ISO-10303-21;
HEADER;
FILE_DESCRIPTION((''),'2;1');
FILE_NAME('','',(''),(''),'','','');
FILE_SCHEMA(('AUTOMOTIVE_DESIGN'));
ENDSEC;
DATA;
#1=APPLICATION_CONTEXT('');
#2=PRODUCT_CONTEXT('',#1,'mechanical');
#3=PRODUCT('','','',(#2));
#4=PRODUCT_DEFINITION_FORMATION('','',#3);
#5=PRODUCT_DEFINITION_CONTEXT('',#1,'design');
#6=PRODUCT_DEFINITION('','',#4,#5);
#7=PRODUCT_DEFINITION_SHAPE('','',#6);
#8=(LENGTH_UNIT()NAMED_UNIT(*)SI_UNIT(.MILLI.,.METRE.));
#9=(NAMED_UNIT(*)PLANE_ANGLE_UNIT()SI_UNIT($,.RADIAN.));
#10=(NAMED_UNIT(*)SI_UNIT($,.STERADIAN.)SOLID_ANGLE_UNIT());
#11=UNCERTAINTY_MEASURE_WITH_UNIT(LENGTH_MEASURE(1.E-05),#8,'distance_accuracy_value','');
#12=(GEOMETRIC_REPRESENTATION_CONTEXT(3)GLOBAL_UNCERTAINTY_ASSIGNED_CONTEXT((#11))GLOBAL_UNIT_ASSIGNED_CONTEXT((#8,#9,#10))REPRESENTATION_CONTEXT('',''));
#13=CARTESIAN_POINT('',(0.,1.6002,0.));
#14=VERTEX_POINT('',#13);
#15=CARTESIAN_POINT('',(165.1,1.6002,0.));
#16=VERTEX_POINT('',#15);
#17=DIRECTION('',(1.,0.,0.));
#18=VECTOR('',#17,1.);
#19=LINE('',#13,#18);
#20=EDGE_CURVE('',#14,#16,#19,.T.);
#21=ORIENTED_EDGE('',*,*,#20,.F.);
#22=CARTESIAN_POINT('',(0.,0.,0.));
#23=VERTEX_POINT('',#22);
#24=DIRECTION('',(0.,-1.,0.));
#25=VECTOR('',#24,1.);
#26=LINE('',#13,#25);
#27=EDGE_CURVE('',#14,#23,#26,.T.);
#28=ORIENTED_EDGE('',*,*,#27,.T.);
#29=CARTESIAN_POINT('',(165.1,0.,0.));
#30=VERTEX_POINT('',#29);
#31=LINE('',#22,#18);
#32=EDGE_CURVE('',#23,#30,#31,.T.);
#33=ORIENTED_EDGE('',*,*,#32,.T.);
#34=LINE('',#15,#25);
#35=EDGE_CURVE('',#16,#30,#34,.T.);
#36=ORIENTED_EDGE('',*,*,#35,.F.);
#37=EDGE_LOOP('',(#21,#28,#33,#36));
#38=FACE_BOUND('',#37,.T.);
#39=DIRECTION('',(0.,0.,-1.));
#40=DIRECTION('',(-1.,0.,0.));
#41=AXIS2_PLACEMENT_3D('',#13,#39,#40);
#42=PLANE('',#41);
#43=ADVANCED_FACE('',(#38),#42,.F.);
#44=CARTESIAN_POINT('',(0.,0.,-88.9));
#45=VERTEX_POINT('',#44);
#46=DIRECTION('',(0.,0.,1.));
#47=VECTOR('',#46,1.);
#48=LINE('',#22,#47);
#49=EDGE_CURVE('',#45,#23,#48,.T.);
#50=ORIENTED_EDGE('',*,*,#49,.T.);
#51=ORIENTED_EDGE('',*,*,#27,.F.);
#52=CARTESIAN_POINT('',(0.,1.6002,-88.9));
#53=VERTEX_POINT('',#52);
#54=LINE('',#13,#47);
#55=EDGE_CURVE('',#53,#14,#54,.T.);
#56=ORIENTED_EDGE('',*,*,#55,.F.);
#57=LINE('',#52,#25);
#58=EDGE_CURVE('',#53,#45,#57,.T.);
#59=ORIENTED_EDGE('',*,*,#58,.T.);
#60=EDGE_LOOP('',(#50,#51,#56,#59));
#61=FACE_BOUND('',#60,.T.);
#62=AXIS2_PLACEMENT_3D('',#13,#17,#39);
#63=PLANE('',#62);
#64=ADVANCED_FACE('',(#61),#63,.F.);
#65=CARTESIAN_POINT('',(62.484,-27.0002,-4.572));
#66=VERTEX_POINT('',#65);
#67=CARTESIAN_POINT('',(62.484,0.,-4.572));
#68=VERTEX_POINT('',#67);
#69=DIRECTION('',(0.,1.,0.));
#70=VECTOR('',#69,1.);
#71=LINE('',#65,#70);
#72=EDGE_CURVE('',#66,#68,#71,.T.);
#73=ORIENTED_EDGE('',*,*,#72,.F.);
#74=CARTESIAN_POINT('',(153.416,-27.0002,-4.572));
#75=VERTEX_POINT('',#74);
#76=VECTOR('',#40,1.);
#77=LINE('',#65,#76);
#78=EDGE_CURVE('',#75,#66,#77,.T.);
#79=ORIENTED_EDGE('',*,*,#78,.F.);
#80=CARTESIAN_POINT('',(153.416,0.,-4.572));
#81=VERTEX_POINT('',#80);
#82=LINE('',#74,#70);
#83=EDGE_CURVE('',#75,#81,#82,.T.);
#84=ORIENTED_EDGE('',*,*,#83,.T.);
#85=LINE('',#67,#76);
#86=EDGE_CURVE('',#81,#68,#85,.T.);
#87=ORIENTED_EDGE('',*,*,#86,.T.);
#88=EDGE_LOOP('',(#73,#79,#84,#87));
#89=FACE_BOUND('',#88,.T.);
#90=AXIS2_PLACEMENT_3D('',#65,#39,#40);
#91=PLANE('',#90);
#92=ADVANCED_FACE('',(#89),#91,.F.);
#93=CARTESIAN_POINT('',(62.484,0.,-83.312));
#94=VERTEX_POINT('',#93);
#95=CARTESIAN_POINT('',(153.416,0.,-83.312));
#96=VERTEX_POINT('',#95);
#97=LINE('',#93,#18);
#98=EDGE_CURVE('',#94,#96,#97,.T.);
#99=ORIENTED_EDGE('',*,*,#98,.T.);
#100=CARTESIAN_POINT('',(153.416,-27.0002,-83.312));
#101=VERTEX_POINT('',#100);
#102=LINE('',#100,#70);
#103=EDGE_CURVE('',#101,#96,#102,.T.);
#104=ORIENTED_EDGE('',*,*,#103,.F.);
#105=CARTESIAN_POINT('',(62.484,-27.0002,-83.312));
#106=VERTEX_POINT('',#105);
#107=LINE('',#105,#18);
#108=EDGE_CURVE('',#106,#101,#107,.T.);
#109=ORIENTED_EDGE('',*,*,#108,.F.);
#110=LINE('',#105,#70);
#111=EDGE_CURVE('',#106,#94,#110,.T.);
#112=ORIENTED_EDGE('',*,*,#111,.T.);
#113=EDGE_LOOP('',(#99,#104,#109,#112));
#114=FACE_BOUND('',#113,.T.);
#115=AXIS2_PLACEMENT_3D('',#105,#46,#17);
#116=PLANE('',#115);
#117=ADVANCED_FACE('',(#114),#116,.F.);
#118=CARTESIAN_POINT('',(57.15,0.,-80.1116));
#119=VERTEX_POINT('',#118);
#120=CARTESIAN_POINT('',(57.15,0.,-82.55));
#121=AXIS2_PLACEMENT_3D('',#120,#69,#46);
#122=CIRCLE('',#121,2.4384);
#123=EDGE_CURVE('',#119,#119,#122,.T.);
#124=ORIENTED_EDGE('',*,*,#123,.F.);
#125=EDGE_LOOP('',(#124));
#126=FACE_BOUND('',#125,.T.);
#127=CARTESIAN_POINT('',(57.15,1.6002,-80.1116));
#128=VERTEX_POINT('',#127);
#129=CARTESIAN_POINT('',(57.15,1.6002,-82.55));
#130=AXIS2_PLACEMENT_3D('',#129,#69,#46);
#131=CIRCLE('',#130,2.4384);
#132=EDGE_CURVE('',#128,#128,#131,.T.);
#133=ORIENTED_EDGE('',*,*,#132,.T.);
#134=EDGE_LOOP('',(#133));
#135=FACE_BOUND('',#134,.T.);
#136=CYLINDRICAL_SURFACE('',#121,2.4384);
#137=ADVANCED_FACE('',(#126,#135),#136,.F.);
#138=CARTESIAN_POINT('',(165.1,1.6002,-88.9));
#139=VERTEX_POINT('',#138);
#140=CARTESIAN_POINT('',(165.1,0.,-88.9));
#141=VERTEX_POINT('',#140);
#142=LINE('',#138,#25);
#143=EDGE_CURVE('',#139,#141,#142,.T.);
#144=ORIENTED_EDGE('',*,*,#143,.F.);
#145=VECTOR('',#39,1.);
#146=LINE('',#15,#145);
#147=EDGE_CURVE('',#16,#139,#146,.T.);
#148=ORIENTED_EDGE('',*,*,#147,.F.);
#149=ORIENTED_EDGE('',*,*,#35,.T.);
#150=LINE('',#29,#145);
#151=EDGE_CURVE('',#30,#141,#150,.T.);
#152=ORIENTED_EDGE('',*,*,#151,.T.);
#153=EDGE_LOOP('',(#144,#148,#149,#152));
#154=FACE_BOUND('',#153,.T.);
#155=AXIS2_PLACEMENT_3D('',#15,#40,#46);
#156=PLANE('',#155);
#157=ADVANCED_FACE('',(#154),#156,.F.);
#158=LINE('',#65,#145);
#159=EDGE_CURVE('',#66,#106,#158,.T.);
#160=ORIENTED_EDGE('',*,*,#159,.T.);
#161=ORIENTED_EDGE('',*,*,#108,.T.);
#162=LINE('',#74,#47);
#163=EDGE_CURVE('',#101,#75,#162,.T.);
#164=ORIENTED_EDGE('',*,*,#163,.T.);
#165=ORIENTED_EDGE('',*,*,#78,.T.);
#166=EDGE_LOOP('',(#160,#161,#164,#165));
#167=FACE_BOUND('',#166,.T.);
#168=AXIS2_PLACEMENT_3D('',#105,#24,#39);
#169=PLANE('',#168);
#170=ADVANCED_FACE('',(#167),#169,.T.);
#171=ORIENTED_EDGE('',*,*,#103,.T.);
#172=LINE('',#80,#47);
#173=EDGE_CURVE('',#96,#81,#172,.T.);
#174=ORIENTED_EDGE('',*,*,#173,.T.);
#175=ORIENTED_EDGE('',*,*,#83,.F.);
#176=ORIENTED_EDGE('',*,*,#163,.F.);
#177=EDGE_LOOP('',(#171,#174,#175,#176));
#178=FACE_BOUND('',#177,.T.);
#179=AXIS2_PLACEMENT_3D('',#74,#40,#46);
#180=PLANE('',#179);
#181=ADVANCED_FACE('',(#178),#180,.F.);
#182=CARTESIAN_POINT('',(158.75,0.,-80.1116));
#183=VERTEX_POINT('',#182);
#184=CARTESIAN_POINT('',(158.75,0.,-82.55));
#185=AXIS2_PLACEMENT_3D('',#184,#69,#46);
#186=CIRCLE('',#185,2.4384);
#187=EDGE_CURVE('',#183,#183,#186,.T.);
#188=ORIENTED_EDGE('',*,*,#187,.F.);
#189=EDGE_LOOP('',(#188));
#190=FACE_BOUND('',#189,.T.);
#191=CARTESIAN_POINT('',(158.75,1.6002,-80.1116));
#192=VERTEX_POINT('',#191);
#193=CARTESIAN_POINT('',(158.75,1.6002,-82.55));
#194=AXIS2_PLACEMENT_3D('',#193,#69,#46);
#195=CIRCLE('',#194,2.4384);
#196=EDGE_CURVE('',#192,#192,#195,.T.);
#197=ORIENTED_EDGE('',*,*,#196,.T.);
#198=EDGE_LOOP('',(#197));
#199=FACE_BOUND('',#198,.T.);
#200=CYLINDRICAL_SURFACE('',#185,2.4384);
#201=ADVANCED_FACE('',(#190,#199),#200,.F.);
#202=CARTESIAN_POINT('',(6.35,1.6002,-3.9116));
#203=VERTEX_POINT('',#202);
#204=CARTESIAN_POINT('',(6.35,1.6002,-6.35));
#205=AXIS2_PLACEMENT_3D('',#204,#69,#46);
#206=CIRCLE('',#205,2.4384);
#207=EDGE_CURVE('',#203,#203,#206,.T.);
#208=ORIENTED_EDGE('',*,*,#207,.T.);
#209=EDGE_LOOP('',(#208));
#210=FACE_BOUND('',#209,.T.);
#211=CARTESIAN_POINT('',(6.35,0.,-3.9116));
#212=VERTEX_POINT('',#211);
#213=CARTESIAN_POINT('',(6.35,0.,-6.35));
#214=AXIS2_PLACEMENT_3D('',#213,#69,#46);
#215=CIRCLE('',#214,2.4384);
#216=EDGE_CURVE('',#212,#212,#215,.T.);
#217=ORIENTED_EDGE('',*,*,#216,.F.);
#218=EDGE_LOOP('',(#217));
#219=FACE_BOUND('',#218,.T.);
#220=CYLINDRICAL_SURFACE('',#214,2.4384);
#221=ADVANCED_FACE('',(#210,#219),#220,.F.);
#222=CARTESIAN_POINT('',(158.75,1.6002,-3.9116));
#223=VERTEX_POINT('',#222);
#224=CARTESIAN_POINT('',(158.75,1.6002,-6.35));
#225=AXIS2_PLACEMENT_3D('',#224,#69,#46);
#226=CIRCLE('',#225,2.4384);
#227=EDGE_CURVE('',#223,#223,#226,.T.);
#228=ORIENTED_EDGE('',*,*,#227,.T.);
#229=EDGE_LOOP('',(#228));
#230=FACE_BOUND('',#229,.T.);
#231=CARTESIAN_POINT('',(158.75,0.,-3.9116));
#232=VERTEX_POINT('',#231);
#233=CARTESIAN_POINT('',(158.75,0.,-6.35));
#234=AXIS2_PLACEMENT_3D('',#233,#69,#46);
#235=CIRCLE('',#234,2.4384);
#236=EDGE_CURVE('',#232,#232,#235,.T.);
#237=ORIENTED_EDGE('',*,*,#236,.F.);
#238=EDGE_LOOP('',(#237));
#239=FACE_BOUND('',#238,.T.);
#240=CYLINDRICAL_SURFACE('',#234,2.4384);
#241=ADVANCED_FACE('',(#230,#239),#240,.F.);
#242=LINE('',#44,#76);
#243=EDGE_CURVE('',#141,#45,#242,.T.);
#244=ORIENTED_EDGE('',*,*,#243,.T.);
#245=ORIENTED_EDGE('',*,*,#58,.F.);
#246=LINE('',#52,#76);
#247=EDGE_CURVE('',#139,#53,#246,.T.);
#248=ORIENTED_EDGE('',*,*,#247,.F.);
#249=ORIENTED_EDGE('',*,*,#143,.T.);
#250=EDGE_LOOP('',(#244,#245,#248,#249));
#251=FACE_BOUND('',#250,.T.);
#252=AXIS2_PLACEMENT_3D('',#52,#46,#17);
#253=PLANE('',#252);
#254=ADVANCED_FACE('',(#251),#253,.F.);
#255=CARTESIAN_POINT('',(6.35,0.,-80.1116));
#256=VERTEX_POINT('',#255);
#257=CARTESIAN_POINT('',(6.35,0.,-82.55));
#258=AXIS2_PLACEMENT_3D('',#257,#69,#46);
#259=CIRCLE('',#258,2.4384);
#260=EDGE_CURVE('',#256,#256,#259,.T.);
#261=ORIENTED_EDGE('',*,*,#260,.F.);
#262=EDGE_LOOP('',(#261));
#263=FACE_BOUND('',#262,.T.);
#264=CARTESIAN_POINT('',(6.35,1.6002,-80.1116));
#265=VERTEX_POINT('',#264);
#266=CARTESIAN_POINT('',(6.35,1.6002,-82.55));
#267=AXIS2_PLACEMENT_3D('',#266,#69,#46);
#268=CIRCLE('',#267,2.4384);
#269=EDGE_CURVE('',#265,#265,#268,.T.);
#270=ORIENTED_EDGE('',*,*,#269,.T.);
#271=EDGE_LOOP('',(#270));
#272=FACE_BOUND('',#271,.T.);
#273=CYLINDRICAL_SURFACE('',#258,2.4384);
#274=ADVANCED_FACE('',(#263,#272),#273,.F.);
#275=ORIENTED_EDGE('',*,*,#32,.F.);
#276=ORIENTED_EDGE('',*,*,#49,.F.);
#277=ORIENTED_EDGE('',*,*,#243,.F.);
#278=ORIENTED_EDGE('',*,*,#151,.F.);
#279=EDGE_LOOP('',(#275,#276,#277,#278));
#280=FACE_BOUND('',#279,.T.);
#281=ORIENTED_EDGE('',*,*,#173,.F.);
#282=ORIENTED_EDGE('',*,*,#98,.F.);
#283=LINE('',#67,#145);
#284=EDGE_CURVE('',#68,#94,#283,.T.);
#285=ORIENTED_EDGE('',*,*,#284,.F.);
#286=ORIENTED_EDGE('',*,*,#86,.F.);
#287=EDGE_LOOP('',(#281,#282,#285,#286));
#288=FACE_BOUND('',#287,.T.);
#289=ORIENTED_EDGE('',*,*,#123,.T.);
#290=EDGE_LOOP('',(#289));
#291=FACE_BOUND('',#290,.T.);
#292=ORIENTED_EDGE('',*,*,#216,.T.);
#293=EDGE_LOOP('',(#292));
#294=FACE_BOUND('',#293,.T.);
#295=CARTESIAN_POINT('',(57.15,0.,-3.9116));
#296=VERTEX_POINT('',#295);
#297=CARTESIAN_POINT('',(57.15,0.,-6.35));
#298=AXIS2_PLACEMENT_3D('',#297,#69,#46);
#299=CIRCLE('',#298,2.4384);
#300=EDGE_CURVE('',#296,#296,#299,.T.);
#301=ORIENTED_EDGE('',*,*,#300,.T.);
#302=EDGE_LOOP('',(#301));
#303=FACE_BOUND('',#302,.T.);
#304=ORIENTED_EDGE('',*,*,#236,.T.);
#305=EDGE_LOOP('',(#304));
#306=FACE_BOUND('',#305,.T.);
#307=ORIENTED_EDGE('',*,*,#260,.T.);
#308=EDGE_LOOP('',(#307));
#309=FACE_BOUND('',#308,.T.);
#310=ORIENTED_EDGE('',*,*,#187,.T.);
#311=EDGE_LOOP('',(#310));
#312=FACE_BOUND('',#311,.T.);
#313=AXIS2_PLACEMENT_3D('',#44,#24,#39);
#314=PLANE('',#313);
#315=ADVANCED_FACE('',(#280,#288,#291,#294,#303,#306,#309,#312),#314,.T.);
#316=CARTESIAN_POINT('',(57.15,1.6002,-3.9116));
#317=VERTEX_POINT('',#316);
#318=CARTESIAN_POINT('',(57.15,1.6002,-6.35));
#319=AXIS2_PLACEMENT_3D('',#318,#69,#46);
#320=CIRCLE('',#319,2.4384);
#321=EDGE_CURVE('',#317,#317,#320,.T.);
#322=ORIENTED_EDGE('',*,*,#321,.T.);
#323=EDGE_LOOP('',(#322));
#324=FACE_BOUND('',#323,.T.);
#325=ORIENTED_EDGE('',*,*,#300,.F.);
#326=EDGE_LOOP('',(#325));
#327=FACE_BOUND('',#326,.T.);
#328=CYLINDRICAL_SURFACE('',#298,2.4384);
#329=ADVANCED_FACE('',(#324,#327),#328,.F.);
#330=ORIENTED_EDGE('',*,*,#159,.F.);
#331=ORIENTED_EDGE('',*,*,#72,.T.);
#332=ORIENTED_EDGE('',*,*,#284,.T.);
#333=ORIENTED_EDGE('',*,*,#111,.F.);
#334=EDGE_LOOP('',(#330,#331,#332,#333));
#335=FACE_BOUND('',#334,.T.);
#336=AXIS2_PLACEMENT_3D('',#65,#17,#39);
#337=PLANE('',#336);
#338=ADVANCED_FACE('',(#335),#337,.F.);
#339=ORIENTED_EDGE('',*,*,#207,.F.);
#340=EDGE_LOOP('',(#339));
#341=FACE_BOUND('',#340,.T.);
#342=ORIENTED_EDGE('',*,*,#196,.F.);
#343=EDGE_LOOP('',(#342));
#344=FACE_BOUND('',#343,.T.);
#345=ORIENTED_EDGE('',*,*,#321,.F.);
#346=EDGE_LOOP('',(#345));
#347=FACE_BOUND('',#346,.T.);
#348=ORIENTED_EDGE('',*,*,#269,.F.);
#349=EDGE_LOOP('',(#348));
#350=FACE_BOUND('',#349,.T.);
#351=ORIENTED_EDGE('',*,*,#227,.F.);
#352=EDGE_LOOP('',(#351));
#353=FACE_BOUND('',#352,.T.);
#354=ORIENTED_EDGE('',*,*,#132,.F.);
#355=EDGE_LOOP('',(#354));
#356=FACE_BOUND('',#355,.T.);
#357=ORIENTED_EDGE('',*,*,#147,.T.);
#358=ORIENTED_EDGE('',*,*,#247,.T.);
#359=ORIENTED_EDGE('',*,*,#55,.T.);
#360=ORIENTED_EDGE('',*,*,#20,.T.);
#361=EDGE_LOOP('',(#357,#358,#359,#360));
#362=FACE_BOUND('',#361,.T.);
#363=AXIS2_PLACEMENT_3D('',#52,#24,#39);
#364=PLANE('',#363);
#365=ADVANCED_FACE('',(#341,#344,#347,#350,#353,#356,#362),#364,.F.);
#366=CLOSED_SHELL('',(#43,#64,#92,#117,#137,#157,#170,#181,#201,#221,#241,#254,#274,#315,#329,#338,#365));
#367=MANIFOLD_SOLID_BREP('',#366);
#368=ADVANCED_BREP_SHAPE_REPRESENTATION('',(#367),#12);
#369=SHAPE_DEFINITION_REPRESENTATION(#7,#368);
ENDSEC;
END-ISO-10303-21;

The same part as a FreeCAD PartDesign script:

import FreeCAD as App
import Part
import Sketcher
Q = App.Units.Quantity

doc = App.newDocument("Part")
body = doc.addObject("PartDesign::Body", "Body")

sketch1 = body.newObject("Sketcher::SketchObject", "Sketch")
sketch1.AttachmentSupport = (doc.getObject("XZ_Plane"), [""])
sketch1.MapMode = "FlatFace"
sketch1.addGeometry(Part.LineSegment(App.Vector(0, -88.9, 0), App.Vector(0, 0, 0)), False)
sketch1.addGeometry(Part.LineSegment(App.Vector(0, 0, 0), App.Vector(165.1, 0, 0)), False)
sketch1.addGeometry(Part.LineSegment(App.Vector(165.1, 0, 0), App.Vector(165.1, -88.9, 0)), False)
sketch1.addGeometry(Part.LineSegment(App.Vector(165.1, -88.9, 0), App.Vector(0, -88.9, 0)), False)
sketch1.addConstraint(Sketcher.Constraint("Coincident", 0, 2, 1, 1))
sketch1.addConstraint(Sketcher.Constraint("Coincident", 1, 2, 2, 1))
sketch1.addConstraint(Sketcher.Constraint("Coincident", 2, 2, 3, 1))
sketch1.addConstraint(Sketcher.Constraint("Coincident", 3, 2, 0, 1))
sketch1.addConstraint(Sketcher.Constraint("Vertical", 0))
sketch1.addConstraint(Sketcher.Constraint("Horizontal", 1))
sketch1.addConstraint(Sketcher.Constraint("Vertical", 2))
sketch1.addConstraint(Sketcher.Constraint("Horizontal", 3))
sketch1.addConstraint(Sketcher.Constraint("Coincident", 0, 2, -1, 1))
sketch1.addConstraint(Sketcher.Constraint("DistanceX", 1, 1, 1, 2, Q("6.5 in")))
sketch1.addConstraint(Sketcher.Constraint("DistanceY", 0, 1, 0, 2, Q("3.5 in")))
pad1 = body.newObject("PartDesign::Pad", "Pad")
pad1.Profile = sketch1
pad1.Length = Q("0.063 in")
pad1.Reversed = True

sketch2 = body.newObject("Sketcher::SketchObject", "Sketch001")
sketch2.AttachmentSupport = (doc.getObject("XZ_Plane"), [""])
sketch2.MapMode = "FlatFace"
sketch2.AttachmentOffset = App.Placement(App.Vector(0, 0, -0.063 * 25.4), App.Rotation())
sketch2.addGeometry(Part.Circle(App.Vector(158.75, -6.35, 0), App.Vector(0, 0, 1), 2.4384), False)
sketch2.addGeometry(Part.Circle(App.Vector(57.15, -6.35, 0), App.Vector(0, 0, 1), 2.4384), False)
sketch2.addGeometry(Part.Circle(App.Vector(6.35, -6.35, 0), App.Vector(0, 0, 1), 2.4384), False)
sketch2.addGeometry(Part.Circle(App.Vector(158.75, -82.55, 0), App.Vector(0, 0, 1), 2.4384), False)
sketch2.addGeometry(Part.Circle(App.Vector(57.15, -82.55, 0), App.Vector(0, 0, 1), 2.4384), False)
sketch2.addGeometry(Part.Circle(App.Vector(6.35, -82.55, 0), App.Vector(0, 0, 1), 2.4384), False)
sketch2.addConstraint(Sketcher.Constraint("Equal", 0, 1))
sketch2.addConstraint(Sketcher.Constraint("Equal", 1, 2))
sketch2.addConstraint(Sketcher.Constraint("Equal", 2, 3))
sketch2.addConstraint(Sketcher.Constraint("Equal", 3, 4))
sketch2.addConstraint(Sketcher.Constraint("Equal", 4, 5))
sketch2.addConstraint(Sketcher.Constraint("Horizontal", 0, 3, 1, 3))
sketch2.addConstraint(Sketcher.Constraint("Horizontal", 1, 3, 2, 3))
sketch2.addConstraint(Sketcher.Constraint("Horizontal", 3, 3, 4, 3))
sketch2.addConstraint(Sketcher.Constraint("Horizontal", 4, 3, 5, 3))
sketch2.addConstraint(Sketcher.Constraint("Vertical", 0, 3, 3, 3))
sketch2.addConstraint(Sketcher.Constraint("Vertical", 1, 3, 4, 3))
sketch2.addConstraint(Sketcher.Constraint("Vertical", 2, 3, 5, 3))
sketch2.addConstraint(Sketcher.Constraint("Diameter", 0, Q("0.192 in")))
sketch2.addConstraint(Sketcher.Constraint("DistanceX", 1, 3, 0, 3, Q("4 in")))
sketch2.addConstraint(Sketcher.Constraint("DistanceX", 2, 3, 1, 3, Q("2 in")))
sketch2.addConstraint(Sketcher.Constraint("DistanceY", 3, 3, 0, 3, Q("3 in")))
sketch2.addConstraint(Sketcher.Constraint("DistanceX", -1, 1, 0, 3, Q("6.25 in")))
sketch2.addConstraint(Sketcher.Constraint("DistanceY", 0, 3, -1, 1, Q("0.25 in")))
pocket1 = body.newObject("PartDesign::Pocket", "Pocket")
pocket1.Profile = sketch2
pocket1.Type = "ThroughAll"
pocket1.Reversed = True

sketch3 = body.newObject("Sketcher::SketchObject", "Sketch002")
sketch3.AttachmentSupport = (doc.getObject("XZ_Plane"), [""])
sketch3.MapMode = "FlatFace"
sketch3.addGeometry(Part.LineSegment(App.Vector(62.484, -4.572, 0), App.Vector(62.484, -83.312, 0)), False)
sketch3.addGeometry(Part.LineSegment(App.Vector(62.484, -83.312, 0), App.Vector(153.416, -83.312, 0)), False)
sketch3.addGeometry(Part.LineSegment(App.Vector(153.416, -83.312, 0), App.Vector(153.416, -4.572, 0)), False)
sketch3.addGeometry(Part.LineSegment(App.Vector(153.416, -4.572, 0), App.Vector(62.484, -4.572, 0)), False)
sketch3.addConstraint(Sketcher.Constraint("Coincident", 0, 2, 1, 1))
sketch3.addConstraint(Sketcher.Constraint("Coincident", 1, 2, 2, 1))
sketch3.addConstraint(Sketcher.Constraint("Coincident", 2, 2, 3, 1))
sketch3.addConstraint(Sketcher.Constraint("Coincident", 3, 2, 0, 1))
sketch3.addConstraint(Sketcher.Constraint("Vertical", 0))
sketch3.addConstraint(Sketcher.Constraint("Horizontal", 1))
sketch3.addConstraint(Sketcher.Constraint("Vertical", 2))
sketch3.addConstraint(Sketcher.Constraint("Horizontal", 3))
sketch3.addConstraint(Sketcher.Constraint("DistanceY", 0, 2, 0, 1, Q("3.1 in")))
sketch3.addConstraint(Sketcher.Constraint("DistanceX", 1, 1, 1, 2, Q("3.58 in")))
sketch3.addConstraint(Sketcher.Constraint("DistanceX", -1, 1, 0, 2, Q("2.46 in")))
sketch3.addConstraint(Sketcher.Constraint("DistanceY", 0, 2, -1, 1, Q("3.28 in")))
pad2 = body.newObject("PartDesign::Pad", "Pad001")
pad2.Profile = sketch3
pad2.Length = Q("1.063 in")

doc.recompute()
